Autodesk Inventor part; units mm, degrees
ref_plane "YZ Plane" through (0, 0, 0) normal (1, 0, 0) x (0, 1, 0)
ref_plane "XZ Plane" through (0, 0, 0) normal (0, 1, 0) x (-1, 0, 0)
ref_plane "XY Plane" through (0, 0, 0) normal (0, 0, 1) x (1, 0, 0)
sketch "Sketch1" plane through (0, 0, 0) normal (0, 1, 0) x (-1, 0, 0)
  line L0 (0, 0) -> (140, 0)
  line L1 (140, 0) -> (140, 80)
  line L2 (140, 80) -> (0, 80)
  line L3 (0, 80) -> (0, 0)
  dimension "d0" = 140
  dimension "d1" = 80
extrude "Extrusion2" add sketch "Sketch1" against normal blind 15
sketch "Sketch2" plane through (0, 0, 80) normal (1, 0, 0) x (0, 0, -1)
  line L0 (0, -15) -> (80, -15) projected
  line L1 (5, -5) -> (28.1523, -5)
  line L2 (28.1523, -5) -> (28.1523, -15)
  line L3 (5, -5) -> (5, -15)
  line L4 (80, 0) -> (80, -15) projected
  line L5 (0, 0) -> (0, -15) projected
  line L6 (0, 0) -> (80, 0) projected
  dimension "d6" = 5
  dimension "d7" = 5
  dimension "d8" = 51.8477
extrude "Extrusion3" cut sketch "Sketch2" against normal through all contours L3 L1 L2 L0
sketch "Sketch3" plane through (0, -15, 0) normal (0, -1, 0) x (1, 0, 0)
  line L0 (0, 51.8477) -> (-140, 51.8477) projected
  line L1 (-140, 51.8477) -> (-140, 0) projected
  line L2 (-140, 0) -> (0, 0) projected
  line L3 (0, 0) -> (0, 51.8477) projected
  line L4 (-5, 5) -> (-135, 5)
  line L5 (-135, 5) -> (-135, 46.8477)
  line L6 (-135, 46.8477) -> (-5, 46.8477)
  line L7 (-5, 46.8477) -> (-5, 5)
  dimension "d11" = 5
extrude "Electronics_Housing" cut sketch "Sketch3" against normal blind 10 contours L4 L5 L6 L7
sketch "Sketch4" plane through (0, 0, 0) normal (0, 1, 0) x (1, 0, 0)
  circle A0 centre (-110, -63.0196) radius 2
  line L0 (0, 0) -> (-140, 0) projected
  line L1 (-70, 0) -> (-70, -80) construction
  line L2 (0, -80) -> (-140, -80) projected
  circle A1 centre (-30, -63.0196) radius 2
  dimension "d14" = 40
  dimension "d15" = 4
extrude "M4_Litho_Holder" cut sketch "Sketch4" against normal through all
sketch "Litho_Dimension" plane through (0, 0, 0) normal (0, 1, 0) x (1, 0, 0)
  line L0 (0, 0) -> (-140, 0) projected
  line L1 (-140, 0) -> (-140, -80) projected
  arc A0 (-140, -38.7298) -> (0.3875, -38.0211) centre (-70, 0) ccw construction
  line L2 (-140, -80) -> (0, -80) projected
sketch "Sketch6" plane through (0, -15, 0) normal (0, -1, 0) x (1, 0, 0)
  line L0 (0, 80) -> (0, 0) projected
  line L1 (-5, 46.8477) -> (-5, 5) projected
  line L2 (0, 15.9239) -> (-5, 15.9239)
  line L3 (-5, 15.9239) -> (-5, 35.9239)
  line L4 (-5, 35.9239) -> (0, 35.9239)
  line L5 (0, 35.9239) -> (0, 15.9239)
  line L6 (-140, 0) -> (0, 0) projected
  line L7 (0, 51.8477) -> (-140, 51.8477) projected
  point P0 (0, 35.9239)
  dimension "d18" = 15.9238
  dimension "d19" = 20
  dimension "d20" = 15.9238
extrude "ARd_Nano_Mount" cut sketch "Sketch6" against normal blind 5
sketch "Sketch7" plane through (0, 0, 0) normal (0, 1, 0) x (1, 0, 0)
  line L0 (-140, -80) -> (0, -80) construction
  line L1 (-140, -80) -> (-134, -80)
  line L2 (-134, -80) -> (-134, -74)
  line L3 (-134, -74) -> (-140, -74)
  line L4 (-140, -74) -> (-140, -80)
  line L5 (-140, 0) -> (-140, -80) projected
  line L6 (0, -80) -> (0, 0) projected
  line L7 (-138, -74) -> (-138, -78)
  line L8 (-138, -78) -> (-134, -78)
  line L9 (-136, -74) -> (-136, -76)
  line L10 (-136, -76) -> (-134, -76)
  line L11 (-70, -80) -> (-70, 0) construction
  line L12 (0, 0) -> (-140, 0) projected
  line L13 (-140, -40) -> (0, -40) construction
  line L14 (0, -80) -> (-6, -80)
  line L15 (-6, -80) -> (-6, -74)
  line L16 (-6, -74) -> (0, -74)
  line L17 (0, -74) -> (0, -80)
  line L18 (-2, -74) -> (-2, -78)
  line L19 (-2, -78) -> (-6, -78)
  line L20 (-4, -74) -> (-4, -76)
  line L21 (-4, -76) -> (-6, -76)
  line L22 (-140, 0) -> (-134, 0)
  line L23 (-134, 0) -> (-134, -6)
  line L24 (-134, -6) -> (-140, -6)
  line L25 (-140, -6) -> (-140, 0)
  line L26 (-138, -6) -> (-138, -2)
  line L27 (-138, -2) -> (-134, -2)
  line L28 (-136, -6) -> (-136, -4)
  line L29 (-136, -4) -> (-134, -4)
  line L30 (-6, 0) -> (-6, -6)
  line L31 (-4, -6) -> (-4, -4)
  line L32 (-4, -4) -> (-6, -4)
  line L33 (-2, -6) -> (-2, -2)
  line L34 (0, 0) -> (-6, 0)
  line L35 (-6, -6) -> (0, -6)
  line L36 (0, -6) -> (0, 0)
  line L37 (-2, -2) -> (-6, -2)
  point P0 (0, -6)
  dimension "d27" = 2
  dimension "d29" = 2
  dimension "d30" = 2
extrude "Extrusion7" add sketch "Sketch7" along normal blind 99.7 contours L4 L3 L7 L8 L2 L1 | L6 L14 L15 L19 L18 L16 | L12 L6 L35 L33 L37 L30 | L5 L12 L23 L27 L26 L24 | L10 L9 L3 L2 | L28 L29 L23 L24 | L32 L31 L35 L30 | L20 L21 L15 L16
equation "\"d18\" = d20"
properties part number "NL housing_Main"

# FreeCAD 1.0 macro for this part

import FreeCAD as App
import Part
import Sketcher
from FreeCAD import Vector

doc = App.newDocument("Part")
body = doc.addObject("PartDesign::Body", "Body")

sketch1 = body.newObject("Sketcher::SketchObject", "Sketch")
sketch1.AttachmentSupport = (doc.getObject("XZ_Plane"), [""])
sketch1.MapMode = "FlatFace"
sketch1.addGeometry([
    Part.LineSegment(Vector(0, 80, 0), Vector(0, 0, 0)),
    Part.LineSegment(Vector(0, 0, 0), Vector(-140, 0, 0)),
    Part.LineSegment(Vector(-140, 0, 0), Vector(-140, 80, 0)),
    Part.LineSegment(Vector(-140, 80, 0), Vector(0, 80, 0)),
], False)
sketch1.addConstraint([
    Sketcher.Constraint("Coincident", 0, 2, 1, 1),
    Sketcher.Constraint("Coincident", 1, 2, 2, 1),
    Sketcher.Constraint("Coincident", 2, 2, 3, 1),
    Sketcher.Constraint("Coincident", 3, 2, 0, 1),
    Sketcher.Constraint("Vertical", 0),
    Sketcher.Constraint("Horizontal", 1),
    Sketcher.Constraint("Vertical", 2),
    Sketcher.Constraint("Horizontal", 3),
    Sketcher.Constraint("Coincident", 0, 2, -1, 1),
    Sketcher.Constraint("DistanceX", 1, 2, 1, 1, 140.0),
    Sketcher.Constraint("DistanceY", 0, 2, 0, 1, 80.0),
])
pad1 = body.newObject("PartDesign::Pad", "Pad")
pad1.Profile = sketch1
pad1.Length = 15

sketch2 = body.newObject("Sketcher::SketchObject", "Sketch001")
sketch2.AttachmentSupport = (doc.getObject("YZ_Plane"), [""])
sketch2.MapMode = "FlatFace"
sketch2.addGeometry([
    Part.LineSegment(Vector(-5, 75, 0), Vector(-15, 75, 0)),
    Part.LineSegment(Vector(-15, 75, 0), Vector(-15, 52, 0)),
    Part.LineSegment(Vector(-15, 52, 0), Vector(-5, 52, 0)),
    Part.LineSegment(Vector(-5, 52, 0), Vector(-5, 75, 0)),
], False)
sketch2.addConstraint([
    Sketcher.Constraint("Coincident", 0, 2, 1, 1),
    Sketcher.Constraint("Coincident", 1, 2, 2, 1),
    Sketcher.Constraint("Coincident", 2, 2, 3, 1),
    Sketcher.Constraint("Coincident", 3, 2, 0, 1),
    Sketcher.Constraint("Horizontal", 0),
    Sketcher.Constraint("Vertical", 1),
    Sketcher.Constraint("Horizontal", 2),
    Sketcher.Constraint("Vertical", 3),
    Sketcher.Constraint("DistanceX", 2, 2, -1, 1, 5.0),
    Sketcher.Constraint("DistanceX", 0, 2, 0, 1, 10.0),
    Sketcher.Constraint("DistanceY", -1, 1, 0, 2, 75.0),
    Sketcher.Constraint("DistanceY", -1, 1, 1, 2, 51.8477),
])
pocket1 = body.newObject("PartDesign::Pocket", "Pocket")
pocket1.Profile = sketch2
pocket1.Type = "ThroughAll"

sketch3 = body.newObject("Sketcher::SketchObject", "Sketch002")
sketch3.AttachmentSupport = (doc.getObject("XZ_Plane"), [""])
sketch3.MapMode = "FlatFace"
sketch3.AttachmentOffset = App.Placement(Vector(0, 0, 15), App.Rotation())
sketch3.addGeometry([
    Part.LineSegment(Vector(-135, 5, 0), Vector(-5, 5, 0)),
    Part.LineSegment(Vector(-5, 5, 0), Vector(-5, 47, 0)),
    Part.LineSegment(Vector(-5, 47, 0), Vector(-135, 47, 0)),
    Part.LineSegment(Vector(-135, 47, 0), Vector(-135, 5, 0)),
], False)
sketch3.addConstraint([
    Sketcher.Constraint("Coincident", 0, 2, 1, 1),
    Sketcher.Constraint("Coincident", 1, 2, 2, 1),
    Sketcher.Constraint("Coincident", 2, 2, 3, 1),
    Sketcher.Constraint("Coincident", 3, 2, 0, 1),
    Sketcher.Constraint("Horizontal", 0),
    Sketcher.Constraint("Vertical", 1),
    Sketcher.Constraint("Horizontal", 2),
    Sketcher.Constraint("Vertical", 3),
    Sketcher.Constraint("DistanceX", 0, 2, -1, 1, 5.0),
    Sketcher.Constraint("DistanceY", -1, 1, 0, 2, 5.0),
    Sketcher.Constraint("DistanceX", 0, 1, 0, 2, 130.0),
    Sketcher.Constraint("DistanceY", 1, 1, 1, 2, 41.8477),
])
pocket2 = body.newObject("PartDesign::Pocket", "Pocket001")
pocket2.Profile = sketch3
pocket2.Length = 10

sketch4 = body.newObject("Sketcher::SketchObject", "Sketch003")
sketch4.AttachmentSupport = (doc.getObject("XZ_Plane"), [""])
sketch4.MapMode = "FlatFace"
sketch4.addGeometry([
    Part.Circle(Vector(-110, 63, 0), Vector(0, 0, 1), 2),
    Part.Circle(Vector(-30, 63, 0), Vector(0, 0, 1), 2),
], False)
sketch4.addConstraint([
    Sketcher.Constraint("Equal", 0, 1),
    Sketcher.Constraint("Horizontal", 0, 3, 1, 3),
    Sketcher.Constraint("Diameter", 0, 4.0),
    Sketcher.Constraint("DistanceX", 0, 3, -1, 1, 110.0),
    Sketcher.Constraint("DistanceX", 1, 3, -1, 1, 30.0),
    Sketcher.Constraint("DistanceY", -1, 1, 0, 3, 63.0196),
])
pocket3 = body.newObject("PartDesign::Pocket", "Pocket002")
pocket3.Profile = sketch4
pocket3.Type = "ThroughAll"
pocket3.Reversed = True

sketch5 = body.newObject("Sketcher::SketchObject", "Sketch004")
sketch5.AttachmentSupport = (doc.getObject("XZ_Plane"), [""])
sketch5.MapMode = "FlatFace"
sketch5.AttachmentOffset = App.Placement(Vector(0, 0, 15), App.Rotation())
sketch5.addGeometry([
    Part.LineSegment(Vector(0, 16, 0), Vector(0, 36, 0)),
    Part.LineSegment(Vector(0, 36, 0), Vector(-5, 36, 0)),
    Part.LineSegment(Vector(-5, 36, 0), Vector(-5, 16, 0)),
    Part.LineSegment(Vector(-5, 16, 0), Vector(0, 16, 0)),
], False)
sketch5.addConstraint([
    Sketcher.Constraint("Coincident", 0, 2, 1, 1),
    Sketcher.Constraint("Coincident", 1, 2, 2, 1),
    Sketcher.Constraint("Coincident", 2, 2, 3, 1),
    Sketcher.Constraint("Coincident", 3, 2, 0, 1),
    Sketcher.Constraint("Vertical", 0),
    Sketcher.Constraint("Horizontal", 1),
    Sketcher.Constraint("Vertical", 2),
    Sketcher.Constraint("Horizontal", 3),
    Sketcher.Constraint("PointOnObject", 0, 2, -2),
    Sketcher.Constraint("DistanceY", 0, 1, 0, 2, 20.0),
    Sketcher.Constraint("DistanceX", 1, 2, 1, 1, 5.0),
    Sketcher.Constraint("DistanceY", -1, 1, 2, 2, 15.924),
])
pocket4 = body.newObject("PartDesign::Pocket", "Pocket003")
pocket4.Profile = sketch5
pocket4.Length = 5

sketch6 = body.newObject("Sketcher::SketchObject", "Sketch005")
sketch6.AttachmentSupport = (doc.getObject("XZ_Plane"), [""])
sketch6.MapMode = "FlatFace"
sketch6.addGeometry([
    Part.LineSegment(Vector(-140, 74, 0), Vector(-140, 80, 0)),
    Part.LineSegment(Vector(-140, 80, 0), Vector(-134, 80, 0)),
    Part.LineSegment(Vector(-134, 80, 0), Vector(-134, 78, 0)),
    Part.LineSegment(Vector(-134, 78, 0), Vector(-138, 78, 0)),
    Part.LineSegment(Vector(-138, 78, 0), Vector(-138, 74, 0)),
    Part.LineSegment(Vector(-138, 74, 0), Vector(-140, 74, 0)),
    Part.LineSegment(Vector(0, 80, 0), Vector(0, 74, 0)),
    Part.LineSegment(Vector(0, 74, 0), Vector(-2, 74, 0)),
    Part.LineSegment(Vector(-2, 74, 0), Vector(-2, 78, 0)),
    Part.LineSegment(Vector(-2, 78, 0), Vector(-6, 78, 0)),
    Part.LineSegment(Vector(-6, 78, 0), Vector(-6, 80, 0)),
    Part.LineSegment(Vector(-6, 80, 0), Vector(0, 80, 0)),
    Part.LineSegment(Vector(0, 0, 0), Vector(-6, 0, 0)),
    Part.LineSegment(Vector(-6, 0, 0), Vector(-6, 2, 0)),
    Part.LineSegment(Vector(-6, 2, 0), Vector(-2, 2, 0)),
    Part.LineSegment(Vector(-2, 2, 0), Vector(-2, 6, 0)),
    Part.LineSegment(Vector(-2, 6, 0), Vector(0, 6, 0)),
    Part.LineSegment(Vector(0, 6, 0), Vector(0, 0, 0)),
    Part.LineSegment(Vector(-140, 0, 0), Vector(-140, 6, 0)),
    Part.LineSegment(Vector(-140, 6, 0), Vector(-138, 6, 0)),
    Part.LineSegment(Vector(-138, 6, 0), Vector(-138, 2, 0)),
    Part.LineSegment(Vector(-138, 2, 0), Vector(-134, 2, 0)),
    Part.LineSegment(Vector(-134, 2, 0), Vector(-134, 0, 0)),
    Part.LineSegment(Vector(-134, 0, 0), Vector(-140, 0, 0)),
    Part.LineSegment(Vector(-136, 76, 0), Vector(-134, 76, 0)),
    Part.LineSegment(Vector(-134, 76, 0), Vector(-134, 74, 0)),
    Part.LineSegment(Vector(-134, 74, 0), Vector(-136, 74, 0)),
    Part.LineSegment(Vector(-136, 74, 0), Vector(-136, 76, 0)),
    Part.LineSegment(Vector(-136, 4, 0), Vector(-136, 6, 0)),
    Part.LineSegment(Vector(-136, 6, 0), Vector(-134, 6, 0)),
    Part.LineSegment(Vector(-134, 6, 0), Vector(-134, 4, 0)),
    Part.LineSegment(Vector(-134, 4, 0), Vector(-136, 4, 0)),
    Part.LineSegment(Vector(-4, 4, 0), Vector(-6, 4, 0)),
    Part.LineSegment(Vector(-6, 4, 0), Vector(-6, 6, 0)),
    Part.LineSegment(Vector(-6, 6, 0), Vector(-4, 6, 0)),
    Part.LineSegment(Vector(-4, 6, 0), Vector(-4, 4, 0)),
    Part.LineSegment(Vector(-4, 76, 0), Vector(-4, 74, 0)),
    Part.LineSegment(Vector(-4, 74, 0), Vector(-6, 74, 0)),
    Part.LineSegment(Vector(-6, 74, 0), Vector(-6, 76, 0)),
    Part.LineSegment(Vector(-6, 76, 0), Vector(-4, 76, 0)),
], False)
sketch6.addConstraint([
    Sketcher.Constraint("Coincident", 0, 2, 1, 1),
    Sketcher.Constraint("Coincident", 1, 2, 2, 1),
    Sketcher.Constraint("Coincident", 2, 2, 3, 1),
    Sketcher.Constraint("Coincident", 3, 2, 4, 1),
    Sketcher.Constraint("Coincident", 4, 2, 5, 1),
    Sketcher.Constraint("Coincident", 5, 2, 0, 1),
    Sketcher.Constraint("Coincident", 6, 2, 7, 1),
    Sketcher.Constraint("Coincident", 7, 2, 8, 1),
    Sketcher.Constraint("Coincident", 8, 2, 9, 1),
    Sketcher.Constraint("Coincident", 9, 2, 10, 1),
    Sketcher.Constraint("Coincident", 10, 2, 11, 1),
    Sketcher.Constraint("Coincident", 11, 2, 6, 1),
    Sketcher.Constraint("Coincident", 12, 2, 13, 1),
    Sketcher.Constraint("Coincident", 13, 2, 14, 1),
    Sketcher.Constraint("Coincident", 14, 2, 15, 1),
    Sketcher.Constraint("Coincident", 15, 2, 16, 1),
    Sketcher.Constraint("Coincident", 16, 2, 17, 1),
    Sketcher.Constraint("Coincident", 17, 2, 12, 1),
    Sketcher.Constraint("Coincident", 18, 2, 19, 1),
    Sketcher.Constraint("Coincident", 19, 2, 20, 1),
    Sketcher.Constraint("Coincident", 20, 2, 21, 1),
    Sketcher.Constraint("Coincident", 21, 2, 22, 1),
    Sketcher.Constraint("Coincident", 22, 2, 23, 1),
    Sketcher.Constraint("Coincident", 23, 2, 18, 1),
    Sketcher.Constraint("Coincident", 24, 2, 25, 1),
    Sketcher.Constraint("Coincident", 25, 2, 26, 1),
    Sketcher.Constraint("Coincident", 26, 2, 27, 1),
    Sketcher.Constraint("Coincident", 27, 2, 24, 1),
    Sketcher.Constraint("Coincident", 28, 2, 29, 1),
    Sketcher.Constraint("Coincident", 29, 2, 30, 1),
    Sketcher.Constraint("Coincident", 30, 2, 31, 1),
    Sketcher.Constraint("Coincident", 31, 2, 28, 1),
    Sketcher.Constraint("Coincident", 32, 2, 33, 1),
    Sketcher.Constraint("Coincident", 33, 2, 34, 1),
    Sketcher.Constraint("Coincident", 34, 2, 35, 1),
    Sketcher.Constraint("Coincident", 35, 2, 32, 1),
    Sketcher.Constraint("Coincident", 36, 2, 37, 1),
    Sketcher.Constraint("Coincident", 37, 2, 38, 1),
    Sketcher.Constraint("Coincident", 38, 2, 39, 1),
    Sketcher.Constraint("Coincident", 39, 2, 36, 1),
    Sketcher.Constraint("Vertical", 0),
    Sketcher.Constraint("Horizontal", 1),
    Sketcher.Constraint("Vertical", 2),
    Sketcher.Constraint("Horizontal", 3),
    Sketcher.Constraint("Vertical", 4),
    Sketcher.Constraint("Horizontal", 5),
    Sketcher.Constraint("Vertical", 6),
    Sketcher.Constraint("Horizontal", 7),
    Sketcher.Constraint("Vertical", 8),
    Sketcher.Constraint("Horizontal", 9),
    Sketcher.Constraint("Vertical", 10),
    Sketcher.Constraint("Horizontal", 11),
    Sketcher.Constraint("Horizontal", 12),
    Sketcher.Constraint("Vertical", 13),
    Sketcher.Constraint("Horizontal", 14),
    Sketcher.Constraint("Vertical", 15),
    Sketcher.Constraint("Horizontal", 16),
    Sketcher.Constraint("Vertical", 17),
    Sketcher.Constraint("Vertical", 18),
    Sketcher.Constraint("Horizontal", 19),
    Sketcher.Constraint("Vertical", 20),
    Sketcher.Constraint("Horizontal", 21),
    Sketcher.Constraint("Vertical", 22),
    Sketcher.Constraint("Horizontal", 23),
    Sketcher.Constraint("Horizontal", 24),
    Sketcher.Constraint("Vertical", 25),
    Sketcher.Constraint("Horizontal", 26),
    Sketcher.Constraint("Vertical", 27),
    Sketcher.Constraint("Vertical", 28),
    Sketcher.Constraint("Horizontal", 29),
    Sketcher.Constraint("Vertical", 30),
    Sketcher.Constraint("Horizontal", 31),
    Sketcher.Constraint("Horizontal", 32),
    Sketcher.Constraint("Vertical", 33),
    Sketcher.Constraint("Horizontal", 34),
    Sketcher.Constraint("Vertical", 35),
    Sketcher.Constraint("Vertical", 36),
    Sketcher.Constraint("Horizontal", 37),
    Sketcher.Constraint("Vertical", 38),
    Sketcher.Constraint("Horizontal", 39),
    Sketcher.Constraint("Coincident", 17, 2, -1, 1),
    Sketcher.Constraint("PointOnObject", 6, 2, -2),
    Sketcher.Constraint("PointOnObject", 22, 2, -1),
    Sketcher.Constraint("Horizontal", 5, 2, 6, 2),
    Sketcher.Constraint("Horizontal", 3, 2, 8, 2),
    Sketcher.Constraint("Horizontal", 1, 2, 10, 2),
    Sketcher.Constraint("Horizontal", 16, 2, 18, 2),
    Sketcher.Constraint("Horizontal", 14, 2, 20, 2),
    Sketcher.Constraint("Horizontal", 7, 2, 25, 2),
    Sketcher.Constraint("Horizontal", 19, 2, 28, 2),
    Sketcher.Constraint("Horizontal", 31, 2, 32, 2),
    Sketcher.Constraint("Horizontal", 29, 2, 33, 2),
    Sketcher.Constraint("Horizontal", 26, 2, 36, 2),
    Sketcher.Constraint("Horizontal", 27, 2, 38, 2),
    Sketcher.Constraint("Vertical", 10, 2, 12, 2),
    Sketcher.Constraint("Vertical", 8, 2, 14, 2),
    Sketcher.Constraint("Vertical", 5, 2, 18, 2),
    Sketcher.Constraint("Vertical", 4, 2, 19, 2),
    Sketcher.Constraint("Vertical", 2, 2, 21, 2),
    Sketcher.Constraint("Vertical", 22, 2, 24, 2),
    Sketcher.Constraint("Vertical", 27, 2, 28, 2),
    Sketcher.Constraint("Vertical", 25, 2, 29, 2),
    Sketcher.Constraint("Vertical", 13, 2, 32, 2),
    Sketcher.Constraint("Vertical", 35, 2, 36, 2),
    Sketcher.Constraint("Vertical", 33, 2, 37, 2),
    Sketcher.Constraint("Equal", 5, 7),
    Sketcher.Constraint("Equal", 3, 9),
    Sketcher.Constraint("Equal", 19, 24),
    Sketcher.Constraint("Equal", 31, 32),
    Sketcher.Constraint("Equal", 23, 0),
    Sketcher.Constraint("Equal", 39, 2),
    Sketcher.Constraint("Equal", 10, 13),
    Sketcher.Constraint("Equal", 8, 15),
    Sketcher.Constraint("Equal", 22, 25),
    Sketcher.Constraint("Equal", 27, 28),
    Sketcher.Constraint("DistanceX", 5, 2, 5, 1, 2.0),
    Sketcher.Constraint("DistanceY", 24, 2, 2, 2, 2.0),
    Sketcher.Constraint("DistanceX", 0, 2, -1, 1, 140.0),
    Sketcher.Constraint("DistanceY", -1, 1, 0, 2, 80.0),
])
pad2 = body.newObject("PartDesign::Pad", "Pad001")
pad2.Profile = sketch6
pad2.Length = 99.7
pad2.Reversed = True

doc.recompute()
